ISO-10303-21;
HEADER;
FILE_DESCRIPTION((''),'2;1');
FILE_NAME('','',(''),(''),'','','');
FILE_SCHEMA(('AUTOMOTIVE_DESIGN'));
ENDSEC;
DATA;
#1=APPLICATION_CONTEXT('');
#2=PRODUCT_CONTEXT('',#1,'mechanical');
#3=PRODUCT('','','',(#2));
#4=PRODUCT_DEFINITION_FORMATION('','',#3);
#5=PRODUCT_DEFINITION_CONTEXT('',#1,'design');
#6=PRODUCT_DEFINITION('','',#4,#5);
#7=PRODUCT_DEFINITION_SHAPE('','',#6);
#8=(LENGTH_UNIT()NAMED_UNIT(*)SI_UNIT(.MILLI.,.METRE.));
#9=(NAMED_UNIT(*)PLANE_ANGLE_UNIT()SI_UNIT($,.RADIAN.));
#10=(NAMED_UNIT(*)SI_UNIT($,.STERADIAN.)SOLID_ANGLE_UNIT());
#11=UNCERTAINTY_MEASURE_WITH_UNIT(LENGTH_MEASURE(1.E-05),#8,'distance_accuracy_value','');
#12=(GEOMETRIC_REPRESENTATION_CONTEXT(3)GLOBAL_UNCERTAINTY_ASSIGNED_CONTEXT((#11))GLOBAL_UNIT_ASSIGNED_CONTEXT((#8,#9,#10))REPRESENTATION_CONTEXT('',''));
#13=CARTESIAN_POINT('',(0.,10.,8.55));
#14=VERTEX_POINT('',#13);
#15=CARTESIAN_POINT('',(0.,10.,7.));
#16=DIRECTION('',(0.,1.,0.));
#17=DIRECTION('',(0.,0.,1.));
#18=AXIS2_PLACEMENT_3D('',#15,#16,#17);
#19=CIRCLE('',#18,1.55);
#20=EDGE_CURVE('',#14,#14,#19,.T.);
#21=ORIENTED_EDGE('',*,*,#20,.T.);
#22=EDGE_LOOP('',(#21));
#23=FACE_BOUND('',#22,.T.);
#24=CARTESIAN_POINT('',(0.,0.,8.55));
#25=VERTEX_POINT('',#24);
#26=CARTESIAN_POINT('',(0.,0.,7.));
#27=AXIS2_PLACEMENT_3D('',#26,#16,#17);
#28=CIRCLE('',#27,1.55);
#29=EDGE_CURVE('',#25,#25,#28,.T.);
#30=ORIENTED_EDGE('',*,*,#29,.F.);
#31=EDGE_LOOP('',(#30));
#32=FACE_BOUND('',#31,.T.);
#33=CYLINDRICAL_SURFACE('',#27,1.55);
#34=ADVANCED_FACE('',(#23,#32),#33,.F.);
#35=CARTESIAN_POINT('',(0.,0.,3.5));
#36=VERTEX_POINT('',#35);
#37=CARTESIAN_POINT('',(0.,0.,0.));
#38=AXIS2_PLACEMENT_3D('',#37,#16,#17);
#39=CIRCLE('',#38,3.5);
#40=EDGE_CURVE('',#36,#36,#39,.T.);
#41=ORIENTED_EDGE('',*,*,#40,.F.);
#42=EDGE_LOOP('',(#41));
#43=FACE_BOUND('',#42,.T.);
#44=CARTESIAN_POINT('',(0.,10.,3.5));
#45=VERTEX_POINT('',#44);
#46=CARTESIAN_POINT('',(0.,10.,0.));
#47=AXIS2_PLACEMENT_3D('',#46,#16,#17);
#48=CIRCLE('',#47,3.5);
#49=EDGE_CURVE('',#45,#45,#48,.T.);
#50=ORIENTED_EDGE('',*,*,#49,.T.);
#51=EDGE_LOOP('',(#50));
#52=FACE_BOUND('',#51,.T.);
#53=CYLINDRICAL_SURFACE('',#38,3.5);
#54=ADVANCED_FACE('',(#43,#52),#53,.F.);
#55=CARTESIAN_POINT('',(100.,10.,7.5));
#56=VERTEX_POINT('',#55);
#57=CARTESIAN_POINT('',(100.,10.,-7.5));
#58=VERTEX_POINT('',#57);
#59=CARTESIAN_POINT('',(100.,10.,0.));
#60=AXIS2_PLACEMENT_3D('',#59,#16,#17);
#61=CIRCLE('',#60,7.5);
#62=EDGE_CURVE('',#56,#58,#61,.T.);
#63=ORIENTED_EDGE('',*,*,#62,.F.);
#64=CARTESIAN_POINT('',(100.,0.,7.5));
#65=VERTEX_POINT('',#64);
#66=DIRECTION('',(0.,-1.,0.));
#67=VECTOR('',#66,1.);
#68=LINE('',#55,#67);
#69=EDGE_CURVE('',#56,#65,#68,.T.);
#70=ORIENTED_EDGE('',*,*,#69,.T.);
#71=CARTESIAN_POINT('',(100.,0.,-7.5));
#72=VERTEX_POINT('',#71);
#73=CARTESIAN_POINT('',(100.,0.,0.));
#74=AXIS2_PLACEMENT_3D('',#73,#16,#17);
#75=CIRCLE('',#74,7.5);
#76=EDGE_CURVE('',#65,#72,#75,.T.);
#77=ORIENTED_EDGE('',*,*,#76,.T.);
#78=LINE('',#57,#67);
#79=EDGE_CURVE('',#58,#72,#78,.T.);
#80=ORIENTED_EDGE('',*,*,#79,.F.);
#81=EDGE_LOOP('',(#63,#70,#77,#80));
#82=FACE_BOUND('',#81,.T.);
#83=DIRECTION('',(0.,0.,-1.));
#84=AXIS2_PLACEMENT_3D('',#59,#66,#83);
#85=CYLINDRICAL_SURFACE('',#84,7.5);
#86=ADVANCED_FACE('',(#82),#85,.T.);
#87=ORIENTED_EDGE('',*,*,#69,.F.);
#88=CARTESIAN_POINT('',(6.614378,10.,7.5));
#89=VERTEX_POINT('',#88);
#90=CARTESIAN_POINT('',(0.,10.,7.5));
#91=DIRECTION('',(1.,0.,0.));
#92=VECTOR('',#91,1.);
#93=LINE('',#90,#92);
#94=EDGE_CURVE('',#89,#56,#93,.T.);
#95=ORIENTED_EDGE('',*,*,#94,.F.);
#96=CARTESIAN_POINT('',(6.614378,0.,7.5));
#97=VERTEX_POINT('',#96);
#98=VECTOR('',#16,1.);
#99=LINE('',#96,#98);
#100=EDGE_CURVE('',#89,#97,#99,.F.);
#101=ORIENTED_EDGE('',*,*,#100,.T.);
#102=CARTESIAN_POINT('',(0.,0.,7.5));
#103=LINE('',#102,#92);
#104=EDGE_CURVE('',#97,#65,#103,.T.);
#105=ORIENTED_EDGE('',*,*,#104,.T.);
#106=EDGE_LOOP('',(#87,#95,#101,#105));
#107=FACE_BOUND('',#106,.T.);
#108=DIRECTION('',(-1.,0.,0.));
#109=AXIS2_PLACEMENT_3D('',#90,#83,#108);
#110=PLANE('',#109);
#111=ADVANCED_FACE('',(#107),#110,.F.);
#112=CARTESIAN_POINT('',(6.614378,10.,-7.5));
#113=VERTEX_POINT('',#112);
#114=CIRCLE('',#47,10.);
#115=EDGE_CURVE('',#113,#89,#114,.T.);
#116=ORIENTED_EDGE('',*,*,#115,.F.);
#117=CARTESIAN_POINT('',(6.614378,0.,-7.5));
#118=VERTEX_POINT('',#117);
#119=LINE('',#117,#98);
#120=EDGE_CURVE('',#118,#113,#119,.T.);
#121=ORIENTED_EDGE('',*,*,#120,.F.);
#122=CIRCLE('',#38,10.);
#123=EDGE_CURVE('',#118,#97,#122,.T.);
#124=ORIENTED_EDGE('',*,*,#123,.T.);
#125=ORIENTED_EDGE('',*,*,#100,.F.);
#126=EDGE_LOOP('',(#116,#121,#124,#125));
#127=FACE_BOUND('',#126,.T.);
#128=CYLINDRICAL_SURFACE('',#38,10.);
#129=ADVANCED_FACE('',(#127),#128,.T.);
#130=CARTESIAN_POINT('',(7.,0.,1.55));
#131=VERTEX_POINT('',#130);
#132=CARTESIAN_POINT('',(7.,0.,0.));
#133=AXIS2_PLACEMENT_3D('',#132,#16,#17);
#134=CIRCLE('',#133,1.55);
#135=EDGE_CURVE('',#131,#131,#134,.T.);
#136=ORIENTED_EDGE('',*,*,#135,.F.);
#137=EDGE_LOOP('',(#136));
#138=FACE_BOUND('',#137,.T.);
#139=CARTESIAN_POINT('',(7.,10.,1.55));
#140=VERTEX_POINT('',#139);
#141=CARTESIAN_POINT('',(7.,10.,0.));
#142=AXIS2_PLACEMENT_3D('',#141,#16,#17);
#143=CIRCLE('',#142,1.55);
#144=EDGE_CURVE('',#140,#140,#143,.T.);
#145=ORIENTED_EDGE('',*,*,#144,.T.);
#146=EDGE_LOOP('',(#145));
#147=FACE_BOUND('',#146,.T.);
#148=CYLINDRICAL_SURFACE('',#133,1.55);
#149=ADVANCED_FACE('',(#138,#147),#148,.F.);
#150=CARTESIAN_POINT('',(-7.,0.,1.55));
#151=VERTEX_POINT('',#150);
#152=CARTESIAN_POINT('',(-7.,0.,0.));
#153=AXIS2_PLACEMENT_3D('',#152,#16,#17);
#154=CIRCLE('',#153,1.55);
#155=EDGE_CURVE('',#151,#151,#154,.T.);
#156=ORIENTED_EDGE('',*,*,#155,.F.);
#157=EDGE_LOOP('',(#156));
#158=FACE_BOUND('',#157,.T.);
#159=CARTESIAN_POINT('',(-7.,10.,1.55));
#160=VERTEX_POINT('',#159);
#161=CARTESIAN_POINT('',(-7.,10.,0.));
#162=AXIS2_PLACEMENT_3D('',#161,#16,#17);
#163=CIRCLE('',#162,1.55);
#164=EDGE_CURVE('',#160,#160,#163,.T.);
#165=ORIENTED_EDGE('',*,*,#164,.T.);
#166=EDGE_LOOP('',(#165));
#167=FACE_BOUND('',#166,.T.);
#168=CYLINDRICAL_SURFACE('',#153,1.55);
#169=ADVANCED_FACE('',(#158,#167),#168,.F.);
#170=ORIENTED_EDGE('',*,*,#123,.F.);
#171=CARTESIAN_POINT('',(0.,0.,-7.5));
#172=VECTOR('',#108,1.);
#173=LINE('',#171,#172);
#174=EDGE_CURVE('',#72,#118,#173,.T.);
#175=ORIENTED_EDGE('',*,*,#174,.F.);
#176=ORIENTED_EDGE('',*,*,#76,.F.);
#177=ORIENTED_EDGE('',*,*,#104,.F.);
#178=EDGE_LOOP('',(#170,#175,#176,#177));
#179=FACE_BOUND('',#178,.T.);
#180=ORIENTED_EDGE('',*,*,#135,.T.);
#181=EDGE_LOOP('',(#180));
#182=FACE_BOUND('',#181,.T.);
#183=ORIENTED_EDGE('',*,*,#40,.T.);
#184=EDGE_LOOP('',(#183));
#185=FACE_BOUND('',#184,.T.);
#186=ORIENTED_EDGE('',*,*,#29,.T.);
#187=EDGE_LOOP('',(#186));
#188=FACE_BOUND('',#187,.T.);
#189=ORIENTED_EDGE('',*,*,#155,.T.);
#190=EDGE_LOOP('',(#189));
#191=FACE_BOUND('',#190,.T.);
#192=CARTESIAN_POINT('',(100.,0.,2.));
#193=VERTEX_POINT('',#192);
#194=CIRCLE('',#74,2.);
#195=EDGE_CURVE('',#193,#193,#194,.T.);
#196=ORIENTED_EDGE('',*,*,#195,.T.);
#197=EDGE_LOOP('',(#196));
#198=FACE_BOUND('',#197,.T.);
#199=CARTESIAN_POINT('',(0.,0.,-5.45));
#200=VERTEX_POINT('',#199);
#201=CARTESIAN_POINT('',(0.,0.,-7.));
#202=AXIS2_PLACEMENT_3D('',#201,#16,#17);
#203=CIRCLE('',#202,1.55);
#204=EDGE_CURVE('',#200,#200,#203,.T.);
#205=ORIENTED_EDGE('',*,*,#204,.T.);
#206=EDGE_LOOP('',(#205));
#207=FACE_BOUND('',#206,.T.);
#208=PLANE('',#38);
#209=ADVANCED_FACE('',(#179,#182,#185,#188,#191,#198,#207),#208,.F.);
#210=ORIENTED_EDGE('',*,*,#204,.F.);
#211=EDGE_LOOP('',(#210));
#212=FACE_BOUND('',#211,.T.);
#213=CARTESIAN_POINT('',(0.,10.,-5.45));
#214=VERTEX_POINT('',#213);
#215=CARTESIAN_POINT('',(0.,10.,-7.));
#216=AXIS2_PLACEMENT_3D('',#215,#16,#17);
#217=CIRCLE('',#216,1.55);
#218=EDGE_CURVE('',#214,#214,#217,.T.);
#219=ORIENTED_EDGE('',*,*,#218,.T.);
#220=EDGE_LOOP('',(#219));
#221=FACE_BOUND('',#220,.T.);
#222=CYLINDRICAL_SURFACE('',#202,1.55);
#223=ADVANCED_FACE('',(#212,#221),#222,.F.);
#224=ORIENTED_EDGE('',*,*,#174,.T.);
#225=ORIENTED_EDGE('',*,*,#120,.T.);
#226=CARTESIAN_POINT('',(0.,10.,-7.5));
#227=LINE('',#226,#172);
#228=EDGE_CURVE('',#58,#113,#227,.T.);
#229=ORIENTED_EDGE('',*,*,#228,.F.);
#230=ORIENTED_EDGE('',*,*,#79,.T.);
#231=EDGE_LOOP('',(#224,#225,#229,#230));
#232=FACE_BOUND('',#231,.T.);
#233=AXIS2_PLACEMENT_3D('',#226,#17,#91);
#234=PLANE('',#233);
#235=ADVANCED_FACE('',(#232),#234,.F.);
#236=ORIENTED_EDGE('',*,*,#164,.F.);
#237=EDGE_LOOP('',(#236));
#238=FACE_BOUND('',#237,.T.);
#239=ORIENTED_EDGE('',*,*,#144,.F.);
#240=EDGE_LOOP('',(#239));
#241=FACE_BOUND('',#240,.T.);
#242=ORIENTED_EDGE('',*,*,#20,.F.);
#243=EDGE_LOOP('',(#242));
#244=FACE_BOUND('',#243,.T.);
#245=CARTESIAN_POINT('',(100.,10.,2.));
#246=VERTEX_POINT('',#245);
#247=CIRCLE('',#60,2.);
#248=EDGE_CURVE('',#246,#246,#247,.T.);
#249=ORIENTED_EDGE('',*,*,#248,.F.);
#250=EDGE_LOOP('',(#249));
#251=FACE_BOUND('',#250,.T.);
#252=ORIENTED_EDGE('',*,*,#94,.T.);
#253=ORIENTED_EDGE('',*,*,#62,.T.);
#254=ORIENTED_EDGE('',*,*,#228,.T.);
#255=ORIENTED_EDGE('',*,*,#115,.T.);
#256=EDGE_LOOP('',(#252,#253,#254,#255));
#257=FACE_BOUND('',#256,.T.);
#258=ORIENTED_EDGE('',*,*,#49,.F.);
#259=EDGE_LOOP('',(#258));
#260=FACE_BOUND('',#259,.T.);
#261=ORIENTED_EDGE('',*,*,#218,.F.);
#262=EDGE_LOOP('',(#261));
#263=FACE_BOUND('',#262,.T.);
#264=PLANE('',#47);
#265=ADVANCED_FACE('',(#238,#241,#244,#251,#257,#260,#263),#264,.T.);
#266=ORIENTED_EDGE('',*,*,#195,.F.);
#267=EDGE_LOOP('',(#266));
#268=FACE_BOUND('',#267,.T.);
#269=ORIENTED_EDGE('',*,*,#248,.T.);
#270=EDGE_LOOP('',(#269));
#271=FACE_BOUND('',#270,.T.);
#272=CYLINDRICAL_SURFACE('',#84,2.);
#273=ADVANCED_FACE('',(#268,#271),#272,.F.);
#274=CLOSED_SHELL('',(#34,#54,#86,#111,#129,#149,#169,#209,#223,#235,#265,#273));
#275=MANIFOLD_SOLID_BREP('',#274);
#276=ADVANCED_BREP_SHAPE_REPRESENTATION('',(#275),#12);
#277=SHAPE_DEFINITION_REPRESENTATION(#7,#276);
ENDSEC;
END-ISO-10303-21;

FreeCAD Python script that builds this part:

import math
import FreeCAD as App
import Part
import Sketcher

V = App.Vector
Q = App.Units.Quantity

doc = App.newDocument("Part")
params = doc.addObject("Spreadsheet::Sheet", "Params")
for row, (alias, value) in enumerate([
    ("sketch1_diameter", "4 mm"),
    ("sketch1_diameter2", "5 mm"),
    ("sketch1_radius", "7.5 mm"),
    ("sketch1_width", "100 mm"),
    ("pad1_length", "10 mm"),
    ("sketch2_diameter", "3 mm"),
    ("sketch3_diameter", "20 mm"),
    ("pad2_length", "10 mm"),
    ("sketch4_diameter", "7 mm"),
    ("sketch4_diameter2", "3.1 mm"),
    ("pocket2_length", "10 mm"),
], start=1):
    params.set(f"A{row}", alias)
    params.set(f"B{row}", "=" + value)
    params.setAlias(f"B{row}", alias)

body = doc.addObject("PartDesign::Body", "Body")

# Sketch on XZ plane
sketch1 = doc.addObject("Sketcher::SketchObject", "Sketch")
body.addObject(sketch1)
sketch1.AttachmentSupport = (doc.XZ_Plane, [""])
sketch1.MapMode = "FlatFace"
sketch1.addGeometry(Part.LineSegment(V(100, -7.5, 0), V(0, -7.5, 0)), False)
sketch1.addGeometry(Part.ArcOfCircle(Part.Circle(V(0, 0, 0), V(0, 0, 1), 7.5), math.radians(90), math.radians(270)), False)
sketch1.addGeometry(Part.LineSegment(V(0, 7.5, 0), V(100, 7.5, 0)), False)
sketch1.addGeometry(Part.ArcOfCircle(Part.Circle(V(100, 0, 0), V(0, 0, 1), 7.5), math.radians(-90), math.radians(90)), False)
sketch1.addGeometry(Part.Circle(V(100, 0, 0), V(0, 0, 1), 2), False)
sketch1.addGeometry(Part.Circle(V(0, 0, 0), V(0, 0, 1), 2.5), False)
sketch1.addConstraint(Sketcher.Constraint("Tangent", 0, 2, 1, 2))
sketch1.addConstraint(Sketcher.Constraint("Tangent", 1, 1, 2, 1))
sketch1.addConstraint(Sketcher.Constraint("Tangent", 2, 2, 3, 2))
sketch1.addConstraint(Sketcher.Constraint("Tangent", 3, 1, 0, 1))
sketch1.addConstraint(Sketcher.Constraint("Horizontal", 0))
sketch1.addConstraint(Sketcher.Constraint("Horizontal", 2))
sketch1.addConstraint(Sketcher.Constraint("Coincident", 1, 3, -1, 1))
sketch1.addConstraint(Sketcher.Constraint("Coincident", 5, 3, -1, 1))
sketch1.addConstraint(Sketcher.Constraint("Coincident", 4, 3, 3, 3))
sketch1.addConstraint(Sketcher.Constraint("Diameter", 4, Q("4 mm")))
sketch1.addConstraint(Sketcher.Constraint("Diameter", 5, Q("5 mm")))
sketch1.addConstraint(Sketcher.Constraint("Radius", 1, Q("7.5 mm")))
sketch1.addConstraint(Sketcher.Constraint("DistanceX", 0, 2, 0, 1, Q("100 mm")))
sketch1.setExpression("Constraints[9]", "Params.sketch1_diameter")
sketch1.setExpression("Constraints[10]", "Params.sketch1_diameter2")
sketch1.setExpression("Constraints[11]", "Params.sketch1_radius")
sketch1.setExpression("Constraints[12]", "Params.sketch1_width")
pad1 = doc.addObject("PartDesign::Pad", "Pad")
body.addObject(pad1)
pad1.Profile = sketch1
pad1.setExpression("Length", "Params.pad1_length")
pad1.Reversed = True

# Sketch on XY plane
sketch2 = doc.addObject("Sketcher::SketchObject", "Sketch001")
body.addObject(sketch2)
sketch2.AttachmentSupport = (doc.XY_Plane, [""])
sketch2.MapMode = "FlatFace"
sketch2.AttachmentOffset = App.Placement(V(0, 0, -7.5), App.Rotation())
sketch2.addGeometry(Part.Circle(V(0, 5, 0), V(0, 0, 1), 1.5), False)
sketch2.addConstraint(Sketcher.Constraint("PointOnObject", 0, 3, -2))
sketch2.addConstraint(Sketcher.Constraint("Diameter", 0, Q("3 mm")))
sketch2.addConstraint(Sketcher.Constraint("DistanceY", -1, 1, 0, 3, Q("5 mm")))
sketch2.setExpression("Constraints[1]", "Params.sketch2_diameter")
pocket1 = doc.addObject("PartDesign::Pocket", "Pocket")
body.addObject(pocket1)
pocket1.Profile = sketch2
pocket1.Type = "ThroughAll"
pocket1.Reversed = True

# Sketch on XZ plane
sketch3 = doc.addObject("Sketcher::SketchObject", "Sketch002")
body.addObject(sketch3)
sketch3.AttachmentSupport = (doc.XZ_Plane, [""])
sketch3.MapMode = "FlatFace"
sketch3.AttachmentOffset = App.Placement(V(0, 0, -10), App.Rotation())
sketch3.addGeometry(Part.Circle(V(0, 0, 0), V(0, 0, 1), 10), False)
sketch3.addConstraint(Sketcher.Constraint("Coincident", 0, 3, -1, 1))
sketch3.addConstraint(Sketcher.Constraint("Diameter", 0, Q("20 mm")))
sketch3.setExpression("Constraints[1]", "Params.sketch3_diameter")
pad2 = doc.addObject("PartDesign::Pad", "Pad001")
body.addObject(pad2)
pad2.Profile = sketch3
pad2.setExpression("Length", "Params.pad2_length")

# Sketch on XZ plane
sketch4 = doc.addObject("Sketcher::SketchObject", "Sketch003")
body.addObject(sketch4)
sketch4.AttachmentSupport = (doc.XZ_Plane, [""])
sketch4.MapMode = "FlatFace"
sketch4.AttachmentOffset = App.Placement(V(0, 0, -10), App.Rotation())
sketch4.addGeometry(Part.Circle(V(0, -7, 0), V(0, 0, 1), 1.6), False)
sketch4.addGeometry(Part.Circle(V(7, 0, 0), V(0, 0, 1), 1.6), False)
sketch4.addGeometry(Part.Circle(V(0, 7, 0), V(0, 0, 1), 1.6), False)
sketch4.addGeometry(Part.Circle(V(-7, 0, 0), V(0, 0, 1), 1.6), False)
sketch4.addGeometry(Part.Circle(V(0, 0, 0), V(0, 0, 1), 3.5), False)
sketch4.addConstraint(Sketcher.Constraint("Coincident", 4, 3, -1, 1))
sketch4.addConstraint(Sketcher.Constraint("Equal", 0, 1))
sketch4.addConstraint(Sketcher.Constraint("Equal", 1, 2))
sketch4.addConstraint(Sketcher.Constraint("Equal", 2, 3))
sketch4.addConstraint(Sketcher.Constraint("Symmetric", 0, 3, 2, 3, -1, 1))
sketch4.addConstraint(Sketcher.Constraint("Symmetric", 1, 3, 3, 3, -1, 1))
sketch4.addConstraint(Sketcher.Constraint("PointOnObject", 0, 3, -2))
sketch4.addConstraint(Sketcher.Constraint("PointOnObject", 1, 3, -1))
sketch4.addConstraint(Sketcher.Constraint("Diameter", 4, Q("7 mm")))
sketch4.addConstraint(Sketcher.Constraint("Diameter", 0, Q("3.1 mm")))
sketch4.addConstraint(Sketcher.Constraint("DistanceY", 0, 3, -1, 1, Q("7 mm")))
sketch4.addConstraint(Sketcher.Constraint("DistanceX", -1, 1, 1, 3, Q("7 mm")))
sketch4.setExpression("Constraints[8]", "Params.sketch4_diameter")
sketch4.setExpression("Constraints[9]", "Params.sketch4_diameter2")
pocket2 = doc.addObject("PartDesign::Pocket", "Pocket001")
body.addObject(pocket2)
pocket2.Profile = sketch4
pocket2.setExpression("Length", "Params.pocket2_length")
pocket2.Reversed = True

doc.recompute()
